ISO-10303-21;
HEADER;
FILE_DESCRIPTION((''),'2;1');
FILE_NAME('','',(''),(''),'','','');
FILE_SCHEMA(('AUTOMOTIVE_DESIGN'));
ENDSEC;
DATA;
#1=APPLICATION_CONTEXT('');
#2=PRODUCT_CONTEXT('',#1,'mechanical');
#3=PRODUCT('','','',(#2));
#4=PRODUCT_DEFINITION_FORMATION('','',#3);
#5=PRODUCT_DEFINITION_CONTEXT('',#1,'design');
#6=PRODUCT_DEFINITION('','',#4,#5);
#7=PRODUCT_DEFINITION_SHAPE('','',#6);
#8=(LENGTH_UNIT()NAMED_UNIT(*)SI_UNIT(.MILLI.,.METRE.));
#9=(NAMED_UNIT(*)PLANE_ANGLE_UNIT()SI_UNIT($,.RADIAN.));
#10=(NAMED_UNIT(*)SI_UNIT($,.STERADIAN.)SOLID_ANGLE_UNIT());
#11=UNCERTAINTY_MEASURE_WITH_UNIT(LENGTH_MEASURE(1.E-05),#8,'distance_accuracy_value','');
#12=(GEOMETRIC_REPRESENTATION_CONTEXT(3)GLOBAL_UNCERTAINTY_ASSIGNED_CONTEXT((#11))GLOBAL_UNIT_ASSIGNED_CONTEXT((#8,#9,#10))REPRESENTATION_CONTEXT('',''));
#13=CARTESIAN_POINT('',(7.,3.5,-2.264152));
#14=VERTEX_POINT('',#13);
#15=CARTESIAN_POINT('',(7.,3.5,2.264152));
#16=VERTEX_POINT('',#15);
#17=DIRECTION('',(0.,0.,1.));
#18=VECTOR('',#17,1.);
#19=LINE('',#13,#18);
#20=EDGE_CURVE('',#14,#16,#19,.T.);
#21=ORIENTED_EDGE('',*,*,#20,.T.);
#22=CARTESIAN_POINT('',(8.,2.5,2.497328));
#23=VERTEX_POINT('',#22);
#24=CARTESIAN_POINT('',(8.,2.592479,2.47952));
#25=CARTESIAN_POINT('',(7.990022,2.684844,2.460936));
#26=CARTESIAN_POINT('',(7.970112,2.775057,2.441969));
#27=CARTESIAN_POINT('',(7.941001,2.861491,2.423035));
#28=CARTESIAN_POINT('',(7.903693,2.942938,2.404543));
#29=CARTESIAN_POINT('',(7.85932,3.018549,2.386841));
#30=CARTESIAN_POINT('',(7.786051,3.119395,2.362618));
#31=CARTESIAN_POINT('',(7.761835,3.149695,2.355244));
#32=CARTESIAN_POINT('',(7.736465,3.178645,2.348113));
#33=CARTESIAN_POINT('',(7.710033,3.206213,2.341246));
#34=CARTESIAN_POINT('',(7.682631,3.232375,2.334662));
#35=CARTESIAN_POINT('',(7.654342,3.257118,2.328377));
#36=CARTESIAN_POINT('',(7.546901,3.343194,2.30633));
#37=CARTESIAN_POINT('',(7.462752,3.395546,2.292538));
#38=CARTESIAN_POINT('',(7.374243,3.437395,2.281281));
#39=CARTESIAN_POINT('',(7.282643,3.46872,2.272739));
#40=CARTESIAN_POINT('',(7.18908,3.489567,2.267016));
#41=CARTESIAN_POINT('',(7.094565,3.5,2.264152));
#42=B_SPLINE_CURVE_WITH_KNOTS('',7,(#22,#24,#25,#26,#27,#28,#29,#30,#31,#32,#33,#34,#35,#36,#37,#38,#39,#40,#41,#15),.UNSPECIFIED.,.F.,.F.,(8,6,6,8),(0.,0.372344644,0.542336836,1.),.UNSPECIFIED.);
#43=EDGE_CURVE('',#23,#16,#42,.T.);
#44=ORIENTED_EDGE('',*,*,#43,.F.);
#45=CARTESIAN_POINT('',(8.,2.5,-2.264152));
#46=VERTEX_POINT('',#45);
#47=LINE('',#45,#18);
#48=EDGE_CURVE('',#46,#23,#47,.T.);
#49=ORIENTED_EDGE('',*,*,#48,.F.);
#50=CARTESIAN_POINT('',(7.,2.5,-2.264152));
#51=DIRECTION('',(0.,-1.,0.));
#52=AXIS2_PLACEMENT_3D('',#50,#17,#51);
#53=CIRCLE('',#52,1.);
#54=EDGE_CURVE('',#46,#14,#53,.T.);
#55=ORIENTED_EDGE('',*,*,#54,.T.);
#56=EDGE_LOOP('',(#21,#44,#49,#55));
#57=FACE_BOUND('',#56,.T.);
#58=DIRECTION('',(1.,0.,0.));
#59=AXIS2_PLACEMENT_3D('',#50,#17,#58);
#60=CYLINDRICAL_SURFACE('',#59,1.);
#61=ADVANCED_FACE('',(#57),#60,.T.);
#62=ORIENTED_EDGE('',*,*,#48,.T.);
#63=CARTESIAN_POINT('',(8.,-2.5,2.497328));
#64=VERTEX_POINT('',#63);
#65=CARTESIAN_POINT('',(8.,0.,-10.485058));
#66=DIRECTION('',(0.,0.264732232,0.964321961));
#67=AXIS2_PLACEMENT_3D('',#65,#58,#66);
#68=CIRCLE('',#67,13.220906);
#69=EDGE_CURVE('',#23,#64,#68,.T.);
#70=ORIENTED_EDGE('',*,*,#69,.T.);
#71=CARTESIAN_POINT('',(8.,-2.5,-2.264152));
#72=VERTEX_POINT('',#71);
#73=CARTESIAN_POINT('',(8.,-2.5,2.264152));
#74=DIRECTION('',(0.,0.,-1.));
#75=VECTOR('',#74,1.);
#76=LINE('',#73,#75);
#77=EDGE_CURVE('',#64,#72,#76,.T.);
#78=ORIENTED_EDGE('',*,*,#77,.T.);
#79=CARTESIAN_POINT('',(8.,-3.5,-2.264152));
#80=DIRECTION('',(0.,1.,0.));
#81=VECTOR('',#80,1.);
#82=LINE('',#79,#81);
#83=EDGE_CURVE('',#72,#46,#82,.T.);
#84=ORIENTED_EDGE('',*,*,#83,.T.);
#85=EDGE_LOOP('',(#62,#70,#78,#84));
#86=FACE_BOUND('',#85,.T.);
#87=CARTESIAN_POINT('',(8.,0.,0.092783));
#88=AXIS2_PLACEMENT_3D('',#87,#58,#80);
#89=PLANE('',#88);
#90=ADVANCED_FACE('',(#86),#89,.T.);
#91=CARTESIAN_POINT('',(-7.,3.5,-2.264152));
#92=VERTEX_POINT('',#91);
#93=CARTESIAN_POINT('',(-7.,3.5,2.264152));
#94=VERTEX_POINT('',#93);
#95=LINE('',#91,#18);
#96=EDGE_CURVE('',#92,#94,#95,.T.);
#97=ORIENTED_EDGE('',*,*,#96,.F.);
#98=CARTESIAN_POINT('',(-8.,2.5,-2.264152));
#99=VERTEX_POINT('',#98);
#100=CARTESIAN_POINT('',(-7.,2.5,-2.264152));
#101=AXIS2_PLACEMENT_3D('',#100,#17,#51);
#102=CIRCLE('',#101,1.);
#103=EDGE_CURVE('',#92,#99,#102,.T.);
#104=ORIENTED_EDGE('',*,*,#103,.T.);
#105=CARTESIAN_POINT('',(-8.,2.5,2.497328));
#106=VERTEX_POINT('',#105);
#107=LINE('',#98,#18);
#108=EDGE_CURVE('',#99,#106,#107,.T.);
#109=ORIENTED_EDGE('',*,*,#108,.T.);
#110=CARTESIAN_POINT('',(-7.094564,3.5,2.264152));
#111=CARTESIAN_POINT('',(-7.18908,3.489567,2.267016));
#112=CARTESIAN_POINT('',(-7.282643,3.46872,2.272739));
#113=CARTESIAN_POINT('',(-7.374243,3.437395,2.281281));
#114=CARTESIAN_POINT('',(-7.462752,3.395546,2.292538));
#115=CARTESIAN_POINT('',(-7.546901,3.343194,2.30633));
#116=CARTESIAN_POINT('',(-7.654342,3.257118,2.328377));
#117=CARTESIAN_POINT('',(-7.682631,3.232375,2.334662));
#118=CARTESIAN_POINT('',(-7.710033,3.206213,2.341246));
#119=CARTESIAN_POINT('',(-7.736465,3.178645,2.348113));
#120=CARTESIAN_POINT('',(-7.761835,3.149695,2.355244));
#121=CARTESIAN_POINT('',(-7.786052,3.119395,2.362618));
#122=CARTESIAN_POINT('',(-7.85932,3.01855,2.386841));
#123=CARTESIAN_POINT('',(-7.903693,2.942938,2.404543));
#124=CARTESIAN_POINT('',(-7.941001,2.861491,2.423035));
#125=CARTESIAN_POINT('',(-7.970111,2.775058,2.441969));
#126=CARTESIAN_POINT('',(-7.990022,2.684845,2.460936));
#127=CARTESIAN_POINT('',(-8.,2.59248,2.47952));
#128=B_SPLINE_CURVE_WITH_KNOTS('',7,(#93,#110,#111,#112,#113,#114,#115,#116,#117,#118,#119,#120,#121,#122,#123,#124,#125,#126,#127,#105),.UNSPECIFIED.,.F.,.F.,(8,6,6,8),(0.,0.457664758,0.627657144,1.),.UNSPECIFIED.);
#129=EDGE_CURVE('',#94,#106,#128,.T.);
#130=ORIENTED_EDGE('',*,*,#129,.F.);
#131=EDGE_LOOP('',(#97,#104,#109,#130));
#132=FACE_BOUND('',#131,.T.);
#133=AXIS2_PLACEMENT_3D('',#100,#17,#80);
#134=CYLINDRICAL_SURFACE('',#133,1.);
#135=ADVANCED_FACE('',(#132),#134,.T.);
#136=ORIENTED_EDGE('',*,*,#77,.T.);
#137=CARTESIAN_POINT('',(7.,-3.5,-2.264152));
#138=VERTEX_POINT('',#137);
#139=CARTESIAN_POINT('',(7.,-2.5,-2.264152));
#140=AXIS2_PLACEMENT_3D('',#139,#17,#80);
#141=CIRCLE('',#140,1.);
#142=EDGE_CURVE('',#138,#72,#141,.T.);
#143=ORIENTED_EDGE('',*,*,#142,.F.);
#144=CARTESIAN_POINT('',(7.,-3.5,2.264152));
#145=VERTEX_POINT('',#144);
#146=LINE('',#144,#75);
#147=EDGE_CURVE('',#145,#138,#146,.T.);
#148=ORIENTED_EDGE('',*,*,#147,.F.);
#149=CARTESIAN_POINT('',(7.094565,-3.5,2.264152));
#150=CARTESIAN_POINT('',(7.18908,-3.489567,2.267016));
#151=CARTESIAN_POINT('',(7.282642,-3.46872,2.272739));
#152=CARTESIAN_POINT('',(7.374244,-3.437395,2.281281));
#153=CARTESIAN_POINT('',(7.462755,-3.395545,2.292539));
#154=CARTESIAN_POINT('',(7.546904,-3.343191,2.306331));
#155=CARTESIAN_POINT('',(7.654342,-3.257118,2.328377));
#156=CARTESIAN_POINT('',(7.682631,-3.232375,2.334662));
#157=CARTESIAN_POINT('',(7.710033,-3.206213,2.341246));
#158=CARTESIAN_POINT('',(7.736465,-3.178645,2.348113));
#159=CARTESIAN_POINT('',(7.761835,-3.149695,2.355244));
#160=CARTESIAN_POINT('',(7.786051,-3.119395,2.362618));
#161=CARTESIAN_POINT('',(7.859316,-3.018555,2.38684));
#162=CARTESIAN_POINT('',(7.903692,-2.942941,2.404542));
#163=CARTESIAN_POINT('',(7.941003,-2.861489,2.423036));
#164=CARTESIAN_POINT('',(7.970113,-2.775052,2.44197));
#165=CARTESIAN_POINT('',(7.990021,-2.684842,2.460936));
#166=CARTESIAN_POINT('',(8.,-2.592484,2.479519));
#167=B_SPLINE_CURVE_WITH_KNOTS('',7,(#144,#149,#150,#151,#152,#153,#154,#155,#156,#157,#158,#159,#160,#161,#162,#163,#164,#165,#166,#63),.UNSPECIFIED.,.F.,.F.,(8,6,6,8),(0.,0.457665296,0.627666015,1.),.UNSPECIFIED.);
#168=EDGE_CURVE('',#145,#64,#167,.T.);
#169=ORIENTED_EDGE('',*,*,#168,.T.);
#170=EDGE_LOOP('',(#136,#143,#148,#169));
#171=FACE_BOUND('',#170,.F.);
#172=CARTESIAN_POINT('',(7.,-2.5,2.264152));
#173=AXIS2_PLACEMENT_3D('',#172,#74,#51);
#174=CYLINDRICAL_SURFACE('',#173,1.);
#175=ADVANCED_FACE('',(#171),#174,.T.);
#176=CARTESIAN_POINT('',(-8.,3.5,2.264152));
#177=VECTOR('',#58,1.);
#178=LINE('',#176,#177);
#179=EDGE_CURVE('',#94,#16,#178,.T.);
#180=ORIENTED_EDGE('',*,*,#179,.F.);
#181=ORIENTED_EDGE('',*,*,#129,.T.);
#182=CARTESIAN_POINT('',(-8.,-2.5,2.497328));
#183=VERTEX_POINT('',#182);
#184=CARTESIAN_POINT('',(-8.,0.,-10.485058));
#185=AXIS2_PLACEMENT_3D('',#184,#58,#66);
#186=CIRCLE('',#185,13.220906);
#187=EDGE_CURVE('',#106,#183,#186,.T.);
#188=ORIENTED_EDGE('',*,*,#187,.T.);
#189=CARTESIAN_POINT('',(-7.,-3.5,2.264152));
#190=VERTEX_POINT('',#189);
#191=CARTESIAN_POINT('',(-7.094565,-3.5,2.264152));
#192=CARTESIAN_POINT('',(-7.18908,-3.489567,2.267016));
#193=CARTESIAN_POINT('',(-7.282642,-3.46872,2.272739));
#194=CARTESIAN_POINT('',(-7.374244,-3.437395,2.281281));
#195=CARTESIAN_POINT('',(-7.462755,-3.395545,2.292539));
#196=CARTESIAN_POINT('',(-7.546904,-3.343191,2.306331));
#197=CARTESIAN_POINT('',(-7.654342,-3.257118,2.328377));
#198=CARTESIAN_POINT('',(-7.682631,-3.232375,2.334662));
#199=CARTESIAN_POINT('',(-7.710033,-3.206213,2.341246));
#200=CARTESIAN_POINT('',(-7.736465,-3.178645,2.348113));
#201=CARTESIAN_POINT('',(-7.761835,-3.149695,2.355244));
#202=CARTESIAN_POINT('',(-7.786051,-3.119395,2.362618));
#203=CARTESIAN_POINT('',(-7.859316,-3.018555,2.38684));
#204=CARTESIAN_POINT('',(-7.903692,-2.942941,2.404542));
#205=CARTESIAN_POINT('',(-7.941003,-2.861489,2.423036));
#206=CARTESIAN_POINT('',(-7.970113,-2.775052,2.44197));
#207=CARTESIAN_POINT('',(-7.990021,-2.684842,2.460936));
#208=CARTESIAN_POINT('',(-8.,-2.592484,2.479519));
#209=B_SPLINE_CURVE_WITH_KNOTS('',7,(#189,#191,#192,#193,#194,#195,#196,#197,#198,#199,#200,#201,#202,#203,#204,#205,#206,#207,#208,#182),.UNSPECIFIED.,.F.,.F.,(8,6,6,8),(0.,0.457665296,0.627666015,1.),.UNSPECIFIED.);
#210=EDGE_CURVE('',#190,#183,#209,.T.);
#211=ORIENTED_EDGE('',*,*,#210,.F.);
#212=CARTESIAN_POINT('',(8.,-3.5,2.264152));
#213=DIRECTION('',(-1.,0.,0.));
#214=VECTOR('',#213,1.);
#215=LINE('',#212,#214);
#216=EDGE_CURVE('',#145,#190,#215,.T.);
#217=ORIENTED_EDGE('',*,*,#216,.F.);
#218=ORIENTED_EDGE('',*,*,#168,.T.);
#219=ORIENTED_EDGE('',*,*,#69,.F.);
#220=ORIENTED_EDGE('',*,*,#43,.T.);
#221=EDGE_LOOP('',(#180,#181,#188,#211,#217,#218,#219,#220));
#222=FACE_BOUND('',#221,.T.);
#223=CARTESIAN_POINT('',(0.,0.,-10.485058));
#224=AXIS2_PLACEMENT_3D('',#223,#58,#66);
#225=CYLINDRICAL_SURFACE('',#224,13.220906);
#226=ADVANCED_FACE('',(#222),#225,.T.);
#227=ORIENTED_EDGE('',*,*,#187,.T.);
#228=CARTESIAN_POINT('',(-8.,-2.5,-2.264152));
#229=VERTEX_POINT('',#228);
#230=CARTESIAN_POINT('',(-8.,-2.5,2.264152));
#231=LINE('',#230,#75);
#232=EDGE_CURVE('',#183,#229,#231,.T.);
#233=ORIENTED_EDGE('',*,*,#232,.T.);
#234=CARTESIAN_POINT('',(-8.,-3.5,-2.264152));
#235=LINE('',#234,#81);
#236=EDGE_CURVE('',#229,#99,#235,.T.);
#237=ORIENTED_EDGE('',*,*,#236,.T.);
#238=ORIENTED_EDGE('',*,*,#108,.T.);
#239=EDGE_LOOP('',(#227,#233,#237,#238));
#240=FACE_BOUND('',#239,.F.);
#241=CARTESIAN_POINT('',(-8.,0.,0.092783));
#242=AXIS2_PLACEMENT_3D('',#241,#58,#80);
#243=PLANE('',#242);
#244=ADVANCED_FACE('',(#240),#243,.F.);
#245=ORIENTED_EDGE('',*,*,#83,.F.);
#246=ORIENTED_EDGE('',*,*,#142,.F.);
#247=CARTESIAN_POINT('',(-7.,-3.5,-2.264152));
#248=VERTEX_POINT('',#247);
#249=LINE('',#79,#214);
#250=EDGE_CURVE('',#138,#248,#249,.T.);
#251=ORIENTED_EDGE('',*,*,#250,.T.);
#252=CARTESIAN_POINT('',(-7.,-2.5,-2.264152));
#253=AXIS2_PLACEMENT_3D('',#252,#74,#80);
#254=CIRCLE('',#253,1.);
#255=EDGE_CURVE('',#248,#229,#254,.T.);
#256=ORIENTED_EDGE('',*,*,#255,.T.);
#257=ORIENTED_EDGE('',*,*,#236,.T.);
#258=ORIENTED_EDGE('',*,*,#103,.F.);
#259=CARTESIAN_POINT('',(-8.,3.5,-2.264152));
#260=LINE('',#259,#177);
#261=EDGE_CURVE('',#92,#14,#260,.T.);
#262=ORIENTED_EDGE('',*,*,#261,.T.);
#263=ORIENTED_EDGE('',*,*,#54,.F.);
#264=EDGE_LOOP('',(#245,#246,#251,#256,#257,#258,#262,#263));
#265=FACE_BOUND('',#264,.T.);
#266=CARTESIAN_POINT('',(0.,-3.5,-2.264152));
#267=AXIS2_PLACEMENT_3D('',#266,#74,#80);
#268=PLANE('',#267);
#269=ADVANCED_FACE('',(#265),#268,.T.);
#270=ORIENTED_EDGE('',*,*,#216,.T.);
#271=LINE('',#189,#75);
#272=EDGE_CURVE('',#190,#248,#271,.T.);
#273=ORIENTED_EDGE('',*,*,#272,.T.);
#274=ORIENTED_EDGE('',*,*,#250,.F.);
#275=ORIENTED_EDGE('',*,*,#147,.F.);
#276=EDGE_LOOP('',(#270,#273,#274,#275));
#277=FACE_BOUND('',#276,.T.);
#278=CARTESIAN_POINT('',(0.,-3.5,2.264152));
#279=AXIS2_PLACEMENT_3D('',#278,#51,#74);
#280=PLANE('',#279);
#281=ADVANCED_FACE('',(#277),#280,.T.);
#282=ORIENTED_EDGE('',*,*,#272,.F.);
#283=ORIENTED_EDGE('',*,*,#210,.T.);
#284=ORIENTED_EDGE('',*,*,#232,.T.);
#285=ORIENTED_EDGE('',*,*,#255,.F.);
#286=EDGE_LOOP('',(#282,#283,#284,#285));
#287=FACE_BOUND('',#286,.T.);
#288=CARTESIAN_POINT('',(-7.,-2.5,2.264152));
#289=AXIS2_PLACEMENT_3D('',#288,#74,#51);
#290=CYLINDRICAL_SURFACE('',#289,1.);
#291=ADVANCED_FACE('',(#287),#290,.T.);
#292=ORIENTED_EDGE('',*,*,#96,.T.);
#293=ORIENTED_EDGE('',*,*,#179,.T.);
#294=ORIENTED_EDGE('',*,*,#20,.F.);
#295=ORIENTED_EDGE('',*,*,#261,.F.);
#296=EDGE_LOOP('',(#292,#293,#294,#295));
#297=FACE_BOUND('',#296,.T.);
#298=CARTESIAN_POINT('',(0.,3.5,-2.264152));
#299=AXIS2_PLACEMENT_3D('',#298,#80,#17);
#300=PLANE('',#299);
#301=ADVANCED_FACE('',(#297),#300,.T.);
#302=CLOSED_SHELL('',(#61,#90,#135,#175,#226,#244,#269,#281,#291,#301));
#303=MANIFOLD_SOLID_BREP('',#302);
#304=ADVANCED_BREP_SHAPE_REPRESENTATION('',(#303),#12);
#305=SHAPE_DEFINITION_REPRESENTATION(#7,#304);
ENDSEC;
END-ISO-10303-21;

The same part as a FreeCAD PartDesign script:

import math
import FreeCAD as App
import Part
import Sketcher
from FreeCAD import Vector
Q = App.Units.Quantity


def edges_at(feature, points):
    """Names of the edges that pass closest to the given points."""
    edges = feature.Shape.Edges
    near = lambda p: min(range(len(edges)), key=lambda i: edges[i].distToShape(Part.Vertex(*p))[0])
    return sorted({f"Edge{near(p) + 1}" for p in points})

doc = App.newDocument("Part")
params = doc.addObject("Spreadsheet::Sheet", "Params")
for row, (alias, value) in enumerate([
    ("sketch1_width", "7 mm"),
    ("pad1_length", "16 mm"),
    ("fillet_radius", "1 mm"),
], start=1):
    params.set(f"A{row}", alias)
    params.set(f"B{row}", "=" + value)
    params.setAlias(f"B{row}", alias)

body = doc.addObject("PartDesign::Body", "Body")

# Sketch on YZ plane
sketch1 = body.newObject("Sketcher::SketchObject", "Sketch")
sketch1.AttachmentSupport = (doc.getObject("YZ_Plane"), [""])
sketch1.MapMode = "FlatFace"
sketch1.addGeometry(Part.LineSegment(Vector(-3.5, -2.3, 0), Vector(3.5, -2.3, 0)), False)
sketch1.addGeometry(Part.LineSegment(Vector(3.5, -2.3, 0), Vector(3.5, 2.3, 0)), False)
sketch1.addGeometry(Part.ArcOfCircle(Part.Circle(Vector(0, -10.5, 0), Vector(0, 0, 1), 13.2), math.radians(75), math.radians(105)), False)
sketch1.addGeometry(Part.LineSegment(Vector(-3.5, 2.3, 0), Vector(-3.5, -2.3, 0)), False)
sketch1.addConstraint(Sketcher.Constraint("Coincident", 0, 2, 1, 1))
sketch1.addConstraint(Sketcher.Constraint("Coincident", 1, 2, 2, 1))
sketch1.addConstraint(Sketcher.Constraint("Coincident", 2, 2, 3, 1))
sketch1.addConstraint(Sketcher.Constraint("Coincident", 3, 2, 0, 1))
sketch1.addConstraint(Sketcher.Constraint("Horizontal", 0))
sketch1.addConstraint(Sketcher.Constraint("Vertical", 1))
sketch1.addConstraint(Sketcher.Constraint("Vertical", 3))
sketch1.addConstraint(Sketcher.Constraint("Symmetric", 0, 2, 2, 2, -1, 1))
sketch1.addConstraint(Sketcher.Constraint("PointOnObject", 2, 3, -2))
sketch1.addConstraint(Sketcher.Constraint("DistanceX", 0, 1, 0, 2, Q("7 mm")))
sketch1.addConstraint(Sketcher.Constraint("Radius", 2, Q("13.220906 mm")))
sketch1.addConstraint(Sketcher.Constraint("DistanceY", 1, 1, 1, 2, Q("4.528304 mm")))
sketch1.setExpression("Constraints[9]", "Params.sketch1_width")
pad1 = body.newObject("PartDesign::Pad", "Pad")
pad1.Profile = sketch1
pad1.setExpression("Length", "Params.pad1_length")
pad1.Midplane = True
doc.recompute()

fillet = body.newObject("PartDesign::Fillet", "Fillet")
fillet.Base = (pad1, edges_at(pad1, [
    (8, -3.5, 0),
    (-8, -3.5, 0),
    (8, 3.5, 0),
    (-8, 3.5, 0),
]))
fillet.setExpression("Radius", "Params.fillet_radius")

doc.recompute()
